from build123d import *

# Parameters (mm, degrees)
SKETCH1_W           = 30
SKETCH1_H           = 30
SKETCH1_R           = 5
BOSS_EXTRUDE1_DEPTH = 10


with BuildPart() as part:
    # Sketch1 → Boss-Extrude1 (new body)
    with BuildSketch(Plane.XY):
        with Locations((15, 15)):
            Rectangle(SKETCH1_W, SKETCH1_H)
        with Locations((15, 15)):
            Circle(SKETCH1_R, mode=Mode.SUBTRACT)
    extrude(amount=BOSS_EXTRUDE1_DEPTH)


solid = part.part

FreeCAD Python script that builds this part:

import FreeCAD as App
import Part
import Sketcher
from FreeCAD import Vector


def add_polygon(sketch, points):
    """Adds a closed chain of lines whose ends are joined by coincident constraints."""
    first, n = sketch.GeometryCount, len(points)
    for a, b in zip(points, points[1:] + points[:1]):
        sketch.addGeometry(Part.LineSegment(App.Vector(*a, 0), App.Vector(*b, 0)), False)
    for i in range(n):
        sketch.addConstraint(Sketcher.Constraint("Coincident", first + i, 2, first + (i + 1) % n, 1))

doc = App.newDocument("Part")
body = doc.addObject("PartDesign::Body", "Body")

# Sketch on XY plane
sketch1 = body.newObject("Sketcher::SketchObject", "Sketch")
sketch1.AttachmentSupport = (doc.getObject("XY_Plane"), [""])
sketch1.MapMode = "FlatFace"
add_polygon(sketch1, [(0, 30), (0, 0), (30, 0), (30, 30)])  # lines 0-3
sketch1.addGeometry(Part.Circle(Vector(15, 15, 0), Vector(0, 0, 1), 5), False)  # 4
sketch1.addConstraint(Sketcher.Constraint("Vertical", 0))
sketch1.addConstraint(Sketcher.Constraint("Horizontal", 1))
sketch1.addConstraint(Sketcher.Constraint("Vertical", 2))
sketch1.addConstraint(Sketcher.Constraint("Horizontal", 3))
sketch1.addConstraint(Sketcher.Constraint("Coincident", 0, 2, -1, 1))
sketch1.addConstraint(Sketcher.Constraint("Equal", 3, 0))
sketch1.addConstraint(Sketcher.Constraint("Diameter", 4, 10.0))
sketch1.addConstraint(Sketcher.Constraint("DistanceX", 1, 1, 1, 2, 30.0))
sketch1.addConstraint(Sketcher.Constraint("DistanceX", -1, 1, 4, 3, 15.0))
sketch1.addConstraint(Sketcher.Constraint("DistanceY", -1, 1, 4, 3, 15.0))
pad1 = body.newObject("PartDesign::Pad", "Pad")
pad1.Profile = sketch1
pad1.Length = 10

doc.recompute()
